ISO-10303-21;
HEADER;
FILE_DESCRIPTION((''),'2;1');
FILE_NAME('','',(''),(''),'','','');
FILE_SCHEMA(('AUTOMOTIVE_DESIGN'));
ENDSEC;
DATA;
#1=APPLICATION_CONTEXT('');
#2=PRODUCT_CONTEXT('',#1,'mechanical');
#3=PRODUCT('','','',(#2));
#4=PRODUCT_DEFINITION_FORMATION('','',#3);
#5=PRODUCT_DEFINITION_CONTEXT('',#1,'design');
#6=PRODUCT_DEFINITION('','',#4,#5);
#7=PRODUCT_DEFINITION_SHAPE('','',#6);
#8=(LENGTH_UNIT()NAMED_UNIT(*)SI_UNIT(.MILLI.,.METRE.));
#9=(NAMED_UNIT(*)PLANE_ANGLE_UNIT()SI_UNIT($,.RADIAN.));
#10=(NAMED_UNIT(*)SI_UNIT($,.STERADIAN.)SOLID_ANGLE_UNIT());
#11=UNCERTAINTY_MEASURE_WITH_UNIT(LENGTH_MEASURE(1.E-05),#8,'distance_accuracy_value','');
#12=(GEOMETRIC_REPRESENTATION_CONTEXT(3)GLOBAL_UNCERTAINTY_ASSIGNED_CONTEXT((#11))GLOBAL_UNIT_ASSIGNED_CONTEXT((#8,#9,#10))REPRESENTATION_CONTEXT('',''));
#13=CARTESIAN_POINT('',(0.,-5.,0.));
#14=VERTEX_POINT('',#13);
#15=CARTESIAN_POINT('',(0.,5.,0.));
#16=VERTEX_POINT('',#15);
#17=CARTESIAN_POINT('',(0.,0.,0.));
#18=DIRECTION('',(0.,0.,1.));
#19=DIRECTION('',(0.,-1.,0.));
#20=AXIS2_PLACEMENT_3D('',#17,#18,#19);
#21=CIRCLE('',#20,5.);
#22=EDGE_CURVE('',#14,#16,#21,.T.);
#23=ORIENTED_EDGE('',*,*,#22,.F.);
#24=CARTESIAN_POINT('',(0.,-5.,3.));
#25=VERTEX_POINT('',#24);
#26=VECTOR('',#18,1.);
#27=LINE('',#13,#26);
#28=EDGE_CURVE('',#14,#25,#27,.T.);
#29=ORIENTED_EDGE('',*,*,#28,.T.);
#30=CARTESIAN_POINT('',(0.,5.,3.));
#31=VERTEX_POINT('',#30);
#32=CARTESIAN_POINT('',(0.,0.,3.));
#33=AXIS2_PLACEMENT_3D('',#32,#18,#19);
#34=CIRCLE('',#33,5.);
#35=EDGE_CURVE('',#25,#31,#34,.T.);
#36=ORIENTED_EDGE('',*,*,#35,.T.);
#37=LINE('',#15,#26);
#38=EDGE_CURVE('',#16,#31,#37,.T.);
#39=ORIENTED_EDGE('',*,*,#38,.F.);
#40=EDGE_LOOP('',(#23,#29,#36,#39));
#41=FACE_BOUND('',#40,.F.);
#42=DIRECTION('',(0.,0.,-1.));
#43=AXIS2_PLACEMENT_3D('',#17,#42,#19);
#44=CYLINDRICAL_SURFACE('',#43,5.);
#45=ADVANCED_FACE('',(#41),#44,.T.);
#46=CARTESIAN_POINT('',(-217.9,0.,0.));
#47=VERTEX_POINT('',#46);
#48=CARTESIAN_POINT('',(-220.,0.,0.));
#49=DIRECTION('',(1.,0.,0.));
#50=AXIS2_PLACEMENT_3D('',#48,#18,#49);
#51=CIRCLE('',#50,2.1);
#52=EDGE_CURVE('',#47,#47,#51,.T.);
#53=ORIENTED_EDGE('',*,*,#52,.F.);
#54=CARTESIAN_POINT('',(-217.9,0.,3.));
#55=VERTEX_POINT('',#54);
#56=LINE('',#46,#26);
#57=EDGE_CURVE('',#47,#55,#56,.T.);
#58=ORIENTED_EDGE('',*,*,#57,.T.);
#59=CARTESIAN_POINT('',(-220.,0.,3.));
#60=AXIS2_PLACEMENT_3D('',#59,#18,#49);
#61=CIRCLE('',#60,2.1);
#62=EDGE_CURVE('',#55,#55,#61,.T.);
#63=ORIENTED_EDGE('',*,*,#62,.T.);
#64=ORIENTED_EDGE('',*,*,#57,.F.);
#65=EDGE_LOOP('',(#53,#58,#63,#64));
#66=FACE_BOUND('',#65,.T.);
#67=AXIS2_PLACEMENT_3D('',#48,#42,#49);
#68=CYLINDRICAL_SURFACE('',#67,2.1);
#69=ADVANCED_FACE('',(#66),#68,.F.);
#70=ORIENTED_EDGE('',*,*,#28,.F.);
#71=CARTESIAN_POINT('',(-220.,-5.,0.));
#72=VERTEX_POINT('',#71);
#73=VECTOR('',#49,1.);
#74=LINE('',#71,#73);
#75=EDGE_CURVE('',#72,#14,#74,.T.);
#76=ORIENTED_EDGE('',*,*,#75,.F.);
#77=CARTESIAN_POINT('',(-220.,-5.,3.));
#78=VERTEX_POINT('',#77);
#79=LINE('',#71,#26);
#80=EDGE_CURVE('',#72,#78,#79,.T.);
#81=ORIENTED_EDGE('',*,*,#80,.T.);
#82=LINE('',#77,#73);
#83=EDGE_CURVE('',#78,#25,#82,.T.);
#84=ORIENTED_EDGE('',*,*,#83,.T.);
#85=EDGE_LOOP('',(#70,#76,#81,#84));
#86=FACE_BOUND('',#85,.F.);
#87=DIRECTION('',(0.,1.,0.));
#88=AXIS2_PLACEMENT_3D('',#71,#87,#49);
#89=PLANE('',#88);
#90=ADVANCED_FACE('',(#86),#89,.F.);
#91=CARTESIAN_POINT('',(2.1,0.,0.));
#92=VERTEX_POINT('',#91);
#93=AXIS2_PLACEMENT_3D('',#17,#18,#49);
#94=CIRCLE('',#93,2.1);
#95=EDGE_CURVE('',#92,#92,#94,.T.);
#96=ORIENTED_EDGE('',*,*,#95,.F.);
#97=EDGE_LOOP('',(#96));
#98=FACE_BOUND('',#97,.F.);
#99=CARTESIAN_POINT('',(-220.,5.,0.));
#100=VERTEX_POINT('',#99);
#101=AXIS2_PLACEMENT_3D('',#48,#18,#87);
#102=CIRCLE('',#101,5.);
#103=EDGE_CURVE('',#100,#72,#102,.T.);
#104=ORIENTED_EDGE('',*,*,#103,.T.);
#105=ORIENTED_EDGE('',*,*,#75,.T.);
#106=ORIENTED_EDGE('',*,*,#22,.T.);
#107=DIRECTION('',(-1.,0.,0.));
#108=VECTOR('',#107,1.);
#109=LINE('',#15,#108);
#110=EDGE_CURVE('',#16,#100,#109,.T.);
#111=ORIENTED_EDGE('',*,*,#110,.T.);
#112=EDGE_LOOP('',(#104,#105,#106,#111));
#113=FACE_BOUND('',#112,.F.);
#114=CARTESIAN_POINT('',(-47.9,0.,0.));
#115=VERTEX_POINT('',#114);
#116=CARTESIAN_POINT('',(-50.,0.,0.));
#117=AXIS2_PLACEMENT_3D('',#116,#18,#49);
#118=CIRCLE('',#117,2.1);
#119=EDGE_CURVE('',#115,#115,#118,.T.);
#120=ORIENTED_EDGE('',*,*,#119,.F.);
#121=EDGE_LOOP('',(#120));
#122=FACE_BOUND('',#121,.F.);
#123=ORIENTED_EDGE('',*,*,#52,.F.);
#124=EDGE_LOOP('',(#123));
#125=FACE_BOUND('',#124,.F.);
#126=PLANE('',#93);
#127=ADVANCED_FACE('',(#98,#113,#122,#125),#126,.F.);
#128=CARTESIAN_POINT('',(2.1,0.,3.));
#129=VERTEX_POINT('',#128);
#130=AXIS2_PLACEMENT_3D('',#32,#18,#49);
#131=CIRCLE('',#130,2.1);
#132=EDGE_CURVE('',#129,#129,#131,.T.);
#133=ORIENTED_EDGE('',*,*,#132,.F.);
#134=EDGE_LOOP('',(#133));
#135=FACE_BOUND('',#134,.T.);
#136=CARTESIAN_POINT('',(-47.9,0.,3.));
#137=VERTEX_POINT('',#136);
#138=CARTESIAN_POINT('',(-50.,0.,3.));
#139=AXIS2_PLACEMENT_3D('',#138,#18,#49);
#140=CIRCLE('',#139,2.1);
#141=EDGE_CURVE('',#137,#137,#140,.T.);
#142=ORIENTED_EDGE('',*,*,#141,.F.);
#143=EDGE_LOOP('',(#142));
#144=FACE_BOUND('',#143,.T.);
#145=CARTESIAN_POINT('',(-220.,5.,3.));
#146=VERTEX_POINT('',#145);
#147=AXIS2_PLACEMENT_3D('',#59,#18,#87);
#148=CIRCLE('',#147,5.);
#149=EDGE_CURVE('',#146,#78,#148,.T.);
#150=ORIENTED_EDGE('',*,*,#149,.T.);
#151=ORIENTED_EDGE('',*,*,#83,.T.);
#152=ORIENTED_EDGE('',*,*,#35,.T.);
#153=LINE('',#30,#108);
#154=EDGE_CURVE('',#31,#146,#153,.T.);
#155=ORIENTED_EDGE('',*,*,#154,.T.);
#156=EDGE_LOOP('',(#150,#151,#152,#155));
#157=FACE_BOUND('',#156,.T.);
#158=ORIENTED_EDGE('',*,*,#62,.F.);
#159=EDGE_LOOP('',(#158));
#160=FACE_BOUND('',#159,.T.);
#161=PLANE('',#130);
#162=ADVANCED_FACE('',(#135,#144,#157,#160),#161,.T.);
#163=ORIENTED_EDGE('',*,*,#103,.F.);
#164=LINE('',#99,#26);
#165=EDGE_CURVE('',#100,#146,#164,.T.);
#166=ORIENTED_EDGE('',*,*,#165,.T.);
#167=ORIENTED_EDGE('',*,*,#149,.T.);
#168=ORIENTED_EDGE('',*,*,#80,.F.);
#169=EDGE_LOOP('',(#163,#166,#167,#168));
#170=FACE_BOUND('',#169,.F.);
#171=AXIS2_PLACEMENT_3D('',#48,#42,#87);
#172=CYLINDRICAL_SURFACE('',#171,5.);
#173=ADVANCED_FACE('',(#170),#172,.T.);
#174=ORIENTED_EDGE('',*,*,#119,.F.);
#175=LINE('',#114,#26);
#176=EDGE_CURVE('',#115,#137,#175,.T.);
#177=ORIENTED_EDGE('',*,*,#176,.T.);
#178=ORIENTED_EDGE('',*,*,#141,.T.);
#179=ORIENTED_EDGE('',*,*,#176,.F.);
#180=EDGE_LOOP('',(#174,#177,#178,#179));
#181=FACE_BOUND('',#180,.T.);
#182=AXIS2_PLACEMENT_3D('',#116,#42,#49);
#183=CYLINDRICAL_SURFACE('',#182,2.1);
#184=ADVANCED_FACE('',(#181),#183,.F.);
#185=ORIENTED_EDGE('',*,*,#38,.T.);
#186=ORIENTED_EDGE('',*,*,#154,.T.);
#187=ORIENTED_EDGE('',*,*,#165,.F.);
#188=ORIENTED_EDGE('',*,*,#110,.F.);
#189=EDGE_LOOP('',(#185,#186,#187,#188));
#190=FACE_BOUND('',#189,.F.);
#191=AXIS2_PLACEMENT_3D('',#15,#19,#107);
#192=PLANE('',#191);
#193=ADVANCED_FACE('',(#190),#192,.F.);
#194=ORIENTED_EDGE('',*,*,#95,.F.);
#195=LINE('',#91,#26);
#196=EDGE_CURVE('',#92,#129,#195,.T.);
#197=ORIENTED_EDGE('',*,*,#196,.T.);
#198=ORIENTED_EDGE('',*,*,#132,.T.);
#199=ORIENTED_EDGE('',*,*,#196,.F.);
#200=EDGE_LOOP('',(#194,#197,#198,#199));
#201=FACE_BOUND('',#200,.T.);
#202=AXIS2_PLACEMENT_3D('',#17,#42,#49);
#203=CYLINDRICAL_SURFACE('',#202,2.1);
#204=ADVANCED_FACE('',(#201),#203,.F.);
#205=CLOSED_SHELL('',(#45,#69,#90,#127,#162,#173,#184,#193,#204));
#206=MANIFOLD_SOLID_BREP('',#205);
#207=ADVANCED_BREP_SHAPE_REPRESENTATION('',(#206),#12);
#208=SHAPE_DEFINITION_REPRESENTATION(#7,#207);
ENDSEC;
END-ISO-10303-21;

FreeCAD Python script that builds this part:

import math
import FreeCAD as App
import Part
import Sketcher
from FreeCAD import Vector
Q = App.Units.Quantity

doc = App.newDocument("Part")
body = doc.addObject("PartDesign::Body", "Body")

sketch1 = body.newObject("Sketcher::SketchObject", "Sketch")
sketch1.AttachmentSupport = (doc.getObject("XY_Plane"), [""])
sketch1.MapMode = "FlatFace"
sketch1.addGeometry(Part.ArcOfCircle(Part.Circle(Vector(-220, 0, 0), Vector(0, 0, 1), 5), math.radians(90), math.radians(270)), False)
sketch1.addGeometry(Part.LineSegment(Vector(-220, -5, 0), Vector(0, -5, 0)), False)
sketch1.addGeometry(Part.ArcOfCircle(Part.Circle(Vector(0, 0, 0), Vector(0, 0, 1), 5), math.radians(-90), math.radians(90)), False)
sketch1.addGeometry(Part.LineSegment(Vector(0, 5, 0), Vector(-220, 5, 0)), False)
sketch1.addGeometry(Part.Circle(Vector(-220, 0, 0), Vector(0, 0, 1), 2.1), False)
sketch1.addGeometry(Part.Circle(Vector(-50, 0, 0), Vector(0, 0, 1), 2.1), False)
sketch1.addGeometry(Part.Circle(Vector(0, 0, 0), Vector(0, 0, 1), 2.1), False)
sketch1.addConstraint(Sketcher.Constraint("Tangent", 0, 2, 1, 1))
sketch1.addConstraint(Sketcher.Constraint("Tangent", 1, 2, 2, 1))
sketch1.addConstraint(Sketcher.Constraint("Tangent", 2, 2, 3, 1))
sketch1.addConstraint(Sketcher.Constraint("Tangent", 3, 2, 0, 1))
sketch1.addConstraint(Sketcher.Constraint("Horizontal", 1))
sketch1.addConstraint(Sketcher.Constraint("Horizontal", 3))
sketch1.addConstraint(Sketcher.Constraint("Coincident", 2, 3, -1, 1))
sketch1.addConstraint(Sketcher.Constraint("Coincident", 6, 3, -1, 1))
sketch1.addConstraint(Sketcher.Constraint("Coincident", 4, 3, 0, 3))
sketch1.addConstraint(Sketcher.Constraint("Equal", 4, 5))
sketch1.addConstraint(Sketcher.Constraint("Equal", 5, 6))
sketch1.addConstraint(Sketcher.Constraint("PointOnObject", 5, 3, -1))
sketch1.addConstraint(Sketcher.Constraint("Radius", 0, Q("5 mm")))
sketch1.addConstraint(Sketcher.Constraint("Diameter", 4, Q("4.2 mm")))
sketch1.addConstraint(Sketcher.Constraint("DistanceX", 1, 1, 1, 2, Q("220 mm")))
sketch1.addConstraint(Sketcher.Constraint("DistanceX", 0, 3, 5, 3, Q("170 mm")))
pad1 = body.newObject("PartDesign::Pad", "Pad")
pad1.Profile = sketch1
pad1.Length = 3

doc.recompute()
